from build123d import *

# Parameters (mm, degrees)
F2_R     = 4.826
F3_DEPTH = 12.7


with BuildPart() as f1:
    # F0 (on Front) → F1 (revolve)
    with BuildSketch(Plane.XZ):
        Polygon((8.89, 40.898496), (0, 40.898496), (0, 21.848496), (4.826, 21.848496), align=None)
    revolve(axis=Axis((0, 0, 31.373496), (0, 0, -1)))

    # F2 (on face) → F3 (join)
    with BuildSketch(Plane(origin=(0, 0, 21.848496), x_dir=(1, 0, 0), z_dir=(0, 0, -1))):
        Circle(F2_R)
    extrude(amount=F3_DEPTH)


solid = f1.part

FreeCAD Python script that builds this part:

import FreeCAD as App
import Part
import Sketcher
Q = App.Units.Quantity


def add_polygon(sketch, points):
    """Adds a closed chain of lines whose ends are joined by coincident constraints."""
    first, n = sketch.GeometryCount, len(points)
    for a, b in zip(points, points[1:] + points[:1]):
        sketch.addGeometry(Part.LineSegment(App.Vector(*a, 0), App.Vector(*b, 0)), False)
    for i in range(n):
        sketch.addConstraint(Sketcher.Constraint("Coincident", first + i, 2, first + (i + 1) % n, 1))

doc = App.newDocument("Part")
body = doc.addObject("PartDesign::Body", "Body")

sketch1 = body.newObject("Sketcher::SketchObject", "Sketch")
sketch1.AttachmentSupport = (doc.getObject("XZ_Plane"), [""])
sketch1.MapMode = "FlatFace"
add_polygon(sketch1, [(8.9, 40.9), (0, 40.9), (0, 21.8), (4.8, 21.8)])
sketch1.addConstraint([
    Sketcher.Constraint("Horizontal", 0),
    Sketcher.Constraint("Vertical", 1),
    Sketcher.Constraint("Horizontal", 2),
    Sketcher.Constraint("PointOnObject", 0, 2, -2),
    Sketcher.Constraint("DistanceX", 0, 2, 0, 1, Q("0.35 in")),
    Sketcher.Constraint("DistanceX", 2, 1, 2, 2, Q("0.19 in")),
    Sketcher.Constraint("DistanceY", 1, 2, 1, 1, Q("0.75 in")),
    Sketcher.Constraint("DistanceY", -1, 1, 0, 2, Q("40.898496 mm")),
])
revolution = body.newObject("PartDesign::Revolution", "Revolution")
revolution.Profile = sketch1
revolution.ReferenceAxis = (sketch1, ["V_Axis"])
revolution.Angle = 360

sketch2 = body.newObject("Sketcher::SketchObject", "Sketch001")
sketch2.AttachmentSupport = (doc.getObject("XY_Plane"), [""])
sketch2.MapMode = "FlatFace"
sketch2.AttachmentOffset = App.Placement(App.Vector(0, 0, 21.848496), App.Rotation())
sketch2.addGeometry(Part.Circle(App.Vector(0, 0, 0), App.Vector(0, 0, 1), 4.8), False)
sketch2.addConstraint([
    Sketcher.Constraint("Coincident", 0, 3, -1, 1),
    Sketcher.Constraint("Diameter", 0, Q("0.38 in")),
])
pad1 = body.newObject("PartDesign::Pad", "Pad")
pad1.Profile = sketch2
pad1.Length = Q("0.5 in")
pad1.Reversed = True

doc.recompute()
